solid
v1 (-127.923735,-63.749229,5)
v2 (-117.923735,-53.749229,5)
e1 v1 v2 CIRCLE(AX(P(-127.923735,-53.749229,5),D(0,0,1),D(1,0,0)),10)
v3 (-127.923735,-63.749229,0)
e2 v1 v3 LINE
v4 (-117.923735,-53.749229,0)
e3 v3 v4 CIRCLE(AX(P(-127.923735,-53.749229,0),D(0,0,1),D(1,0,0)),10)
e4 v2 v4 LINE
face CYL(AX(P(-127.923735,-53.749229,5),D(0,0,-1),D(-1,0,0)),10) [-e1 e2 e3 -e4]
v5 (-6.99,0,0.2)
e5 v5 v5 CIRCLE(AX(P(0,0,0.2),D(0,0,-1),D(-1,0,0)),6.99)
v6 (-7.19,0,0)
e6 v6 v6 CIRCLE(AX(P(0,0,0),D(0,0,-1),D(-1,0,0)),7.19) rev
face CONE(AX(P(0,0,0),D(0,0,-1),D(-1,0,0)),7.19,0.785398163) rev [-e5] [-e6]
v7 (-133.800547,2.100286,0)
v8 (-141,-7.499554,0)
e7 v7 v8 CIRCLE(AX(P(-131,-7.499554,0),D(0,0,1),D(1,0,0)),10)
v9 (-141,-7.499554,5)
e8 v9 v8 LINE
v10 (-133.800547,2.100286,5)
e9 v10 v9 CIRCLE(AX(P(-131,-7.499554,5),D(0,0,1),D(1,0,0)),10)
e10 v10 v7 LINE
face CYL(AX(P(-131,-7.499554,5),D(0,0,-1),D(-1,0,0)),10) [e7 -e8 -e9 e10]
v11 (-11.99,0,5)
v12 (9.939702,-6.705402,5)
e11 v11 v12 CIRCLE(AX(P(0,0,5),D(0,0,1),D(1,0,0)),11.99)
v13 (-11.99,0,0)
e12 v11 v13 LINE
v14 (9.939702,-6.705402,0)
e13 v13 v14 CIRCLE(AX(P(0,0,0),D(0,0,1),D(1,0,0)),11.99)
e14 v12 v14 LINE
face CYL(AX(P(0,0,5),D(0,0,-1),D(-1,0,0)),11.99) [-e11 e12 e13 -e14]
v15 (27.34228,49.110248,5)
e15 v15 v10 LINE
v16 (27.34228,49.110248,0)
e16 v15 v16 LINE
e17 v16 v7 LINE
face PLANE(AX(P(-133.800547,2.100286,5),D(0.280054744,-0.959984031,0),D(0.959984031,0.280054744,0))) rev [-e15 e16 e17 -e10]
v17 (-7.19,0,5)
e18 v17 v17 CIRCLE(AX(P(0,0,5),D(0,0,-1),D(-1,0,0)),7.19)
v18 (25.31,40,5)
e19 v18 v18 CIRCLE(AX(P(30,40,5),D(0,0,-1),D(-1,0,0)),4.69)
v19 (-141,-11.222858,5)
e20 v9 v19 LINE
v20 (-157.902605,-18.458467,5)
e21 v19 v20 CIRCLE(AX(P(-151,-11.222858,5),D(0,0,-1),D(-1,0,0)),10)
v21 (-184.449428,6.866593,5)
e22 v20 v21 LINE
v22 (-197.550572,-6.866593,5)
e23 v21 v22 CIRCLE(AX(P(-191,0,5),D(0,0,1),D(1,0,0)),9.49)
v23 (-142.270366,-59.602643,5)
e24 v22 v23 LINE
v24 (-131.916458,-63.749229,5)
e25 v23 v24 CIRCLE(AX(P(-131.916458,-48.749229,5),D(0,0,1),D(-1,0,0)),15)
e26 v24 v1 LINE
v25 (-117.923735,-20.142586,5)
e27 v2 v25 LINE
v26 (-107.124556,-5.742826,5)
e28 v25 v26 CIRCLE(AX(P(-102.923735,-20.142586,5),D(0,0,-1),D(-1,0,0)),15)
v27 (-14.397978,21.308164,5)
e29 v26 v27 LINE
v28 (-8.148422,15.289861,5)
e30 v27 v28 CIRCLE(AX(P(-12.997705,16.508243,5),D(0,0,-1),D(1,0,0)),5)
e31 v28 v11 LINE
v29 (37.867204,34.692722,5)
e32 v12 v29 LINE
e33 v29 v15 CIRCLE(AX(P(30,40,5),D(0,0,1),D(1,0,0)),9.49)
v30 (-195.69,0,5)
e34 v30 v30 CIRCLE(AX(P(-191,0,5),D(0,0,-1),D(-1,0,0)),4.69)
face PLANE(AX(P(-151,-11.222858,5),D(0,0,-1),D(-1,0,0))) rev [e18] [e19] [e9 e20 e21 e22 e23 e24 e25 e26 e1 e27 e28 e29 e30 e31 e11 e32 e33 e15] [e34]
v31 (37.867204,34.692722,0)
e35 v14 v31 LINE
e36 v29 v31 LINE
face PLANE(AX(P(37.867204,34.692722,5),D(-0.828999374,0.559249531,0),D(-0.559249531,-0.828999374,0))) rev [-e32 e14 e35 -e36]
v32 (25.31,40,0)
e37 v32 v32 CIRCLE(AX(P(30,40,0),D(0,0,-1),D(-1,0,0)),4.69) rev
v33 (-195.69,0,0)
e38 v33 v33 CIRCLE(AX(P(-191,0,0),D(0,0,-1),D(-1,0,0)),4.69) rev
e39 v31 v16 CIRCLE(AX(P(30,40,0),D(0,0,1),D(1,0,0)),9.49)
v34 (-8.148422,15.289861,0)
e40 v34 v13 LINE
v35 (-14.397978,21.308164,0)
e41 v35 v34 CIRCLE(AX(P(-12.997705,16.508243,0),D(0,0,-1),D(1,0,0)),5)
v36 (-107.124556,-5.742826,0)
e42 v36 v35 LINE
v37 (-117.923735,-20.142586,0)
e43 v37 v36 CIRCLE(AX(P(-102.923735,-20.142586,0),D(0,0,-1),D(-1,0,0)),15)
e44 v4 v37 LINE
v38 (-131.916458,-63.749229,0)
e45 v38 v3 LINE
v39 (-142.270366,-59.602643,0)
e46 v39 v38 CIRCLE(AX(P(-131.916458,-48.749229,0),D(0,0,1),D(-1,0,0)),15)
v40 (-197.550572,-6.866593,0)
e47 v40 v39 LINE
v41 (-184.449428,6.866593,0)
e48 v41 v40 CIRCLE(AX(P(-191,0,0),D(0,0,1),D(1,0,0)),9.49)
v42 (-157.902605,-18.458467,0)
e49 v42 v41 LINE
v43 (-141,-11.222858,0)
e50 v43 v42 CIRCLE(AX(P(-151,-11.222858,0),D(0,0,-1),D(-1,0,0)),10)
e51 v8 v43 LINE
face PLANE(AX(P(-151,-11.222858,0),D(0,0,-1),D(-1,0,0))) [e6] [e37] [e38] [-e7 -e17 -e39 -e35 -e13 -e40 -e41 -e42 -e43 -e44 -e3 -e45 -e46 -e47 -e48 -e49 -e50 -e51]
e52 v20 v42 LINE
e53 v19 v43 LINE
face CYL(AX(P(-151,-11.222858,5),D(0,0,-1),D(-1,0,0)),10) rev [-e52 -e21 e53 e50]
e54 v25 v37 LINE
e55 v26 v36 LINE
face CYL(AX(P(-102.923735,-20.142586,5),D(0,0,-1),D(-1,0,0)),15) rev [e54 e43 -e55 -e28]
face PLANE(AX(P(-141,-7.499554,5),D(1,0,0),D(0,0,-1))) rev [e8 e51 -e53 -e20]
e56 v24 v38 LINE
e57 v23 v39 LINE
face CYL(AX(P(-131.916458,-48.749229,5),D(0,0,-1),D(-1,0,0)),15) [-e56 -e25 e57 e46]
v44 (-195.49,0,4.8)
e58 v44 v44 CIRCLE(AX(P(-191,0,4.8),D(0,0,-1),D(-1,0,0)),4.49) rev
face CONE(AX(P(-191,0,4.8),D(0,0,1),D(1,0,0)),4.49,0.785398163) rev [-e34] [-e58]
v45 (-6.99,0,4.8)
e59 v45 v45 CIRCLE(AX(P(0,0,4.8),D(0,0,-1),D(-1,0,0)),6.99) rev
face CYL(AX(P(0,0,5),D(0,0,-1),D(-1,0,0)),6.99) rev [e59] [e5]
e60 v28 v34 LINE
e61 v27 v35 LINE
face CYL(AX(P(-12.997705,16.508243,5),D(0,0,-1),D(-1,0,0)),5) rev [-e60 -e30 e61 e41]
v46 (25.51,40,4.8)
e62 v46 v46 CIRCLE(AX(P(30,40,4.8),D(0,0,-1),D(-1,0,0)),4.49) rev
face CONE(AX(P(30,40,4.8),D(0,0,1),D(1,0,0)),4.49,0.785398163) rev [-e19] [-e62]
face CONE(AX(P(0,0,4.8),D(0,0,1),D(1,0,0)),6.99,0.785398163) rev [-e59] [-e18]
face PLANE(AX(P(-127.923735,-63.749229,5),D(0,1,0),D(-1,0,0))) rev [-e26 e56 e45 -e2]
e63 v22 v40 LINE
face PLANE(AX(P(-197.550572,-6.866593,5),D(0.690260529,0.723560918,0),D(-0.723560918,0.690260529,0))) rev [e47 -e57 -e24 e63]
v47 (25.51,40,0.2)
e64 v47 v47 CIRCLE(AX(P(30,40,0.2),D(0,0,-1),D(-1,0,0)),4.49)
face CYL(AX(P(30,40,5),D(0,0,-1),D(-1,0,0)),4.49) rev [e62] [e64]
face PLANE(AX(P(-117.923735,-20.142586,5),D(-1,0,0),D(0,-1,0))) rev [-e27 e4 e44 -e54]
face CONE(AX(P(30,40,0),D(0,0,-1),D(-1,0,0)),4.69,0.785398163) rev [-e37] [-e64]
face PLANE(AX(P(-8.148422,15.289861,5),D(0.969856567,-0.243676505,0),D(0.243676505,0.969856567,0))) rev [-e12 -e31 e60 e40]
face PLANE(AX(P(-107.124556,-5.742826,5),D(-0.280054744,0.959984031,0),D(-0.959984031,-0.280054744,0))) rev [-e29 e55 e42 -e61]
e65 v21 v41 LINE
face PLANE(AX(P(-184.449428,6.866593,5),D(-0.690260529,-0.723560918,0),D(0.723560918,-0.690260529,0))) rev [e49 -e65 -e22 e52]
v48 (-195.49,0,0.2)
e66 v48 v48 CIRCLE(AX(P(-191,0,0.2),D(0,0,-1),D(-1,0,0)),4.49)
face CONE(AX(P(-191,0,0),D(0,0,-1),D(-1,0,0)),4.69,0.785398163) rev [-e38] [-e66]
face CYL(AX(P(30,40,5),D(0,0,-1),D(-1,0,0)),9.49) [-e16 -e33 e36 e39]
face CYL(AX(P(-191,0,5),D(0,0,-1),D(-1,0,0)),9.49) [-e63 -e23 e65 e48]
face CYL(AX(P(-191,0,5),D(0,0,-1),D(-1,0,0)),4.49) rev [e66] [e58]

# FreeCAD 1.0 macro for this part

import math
import FreeCAD as App
import Part
import Sketcher

V = App.Vector
Q = App.Units.Quantity


def edges_at(feature, points):
    """Names of the edges that pass closest to the given points."""
    edges = feature.Shape.Edges
    near = lambda p: min(range(len(edges)), key=lambda i: edges[i].distToShape(Part.Vertex(*p))[0])
    return sorted({f"Edge{near(p) + 1}" for p in points})

doc = App.newDocument("Part")
body = doc.addObject("PartDesign::Body", "Body")

sketch1 = body.newObject("Sketcher::SketchObject", "Sketch")
sketch1.AttachmentSupport = (doc.getObject("XY_Plane"), [""])
sketch1.MapMode = "FlatFace"
sketch1.addGeometry(Part.LineSegment(V(27.34228, 49.110248, 0), V(-133.800547, 2.100286, 0)), False)
sketch1.addGeometry(Part.ArcOfCircle(Part.Circle(V(-131, -7.499554, 0), V(0, 0, 1), 10), math.radians(106.263472), math.radians(180)), False)
sketch1.addGeometry(Part.LineSegment(V(-141, -7.499554, 0), V(-141, -11.222858, 0)), False)
sketch1.addGeometry(Part.ArcOfCircle(Part.Circle(V(-151, -11.222858, 0), V(0, 0, 1), 10), math.radians(-133.650736), math.radians(0)), False)
sketch1.addGeometry(Part.LineSegment(V(-157.902605, -18.458467, 0), V(-184.449428, 6.866593, 0)), False)
sketch1.addGeometry(Part.ArcOfCircle(Part.Circle(V(-191, 0, 0), V(0, 0, 1), 9.49), math.radians(46.349264), math.radians(226.349264)), False)
sketch1.addGeometry(Part.LineSegment(V(-197.550572, -6.866593, 0), V(-142.270366, -59.602643, 0)), False)
sketch1.addGeometry(Part.ArcOfCircle(Part.Circle(V(-131.916458, -48.749229, 0), V(0, 0, 1), 15), math.radians(-133.650736), math.radians(-90)), False)
sketch1.addGeometry(Part.LineSegment(V(-131.916458, -63.749229, 0), V(-127.923735, -63.749229, 0)), False)
sketch1.addGeometry(Part.ArcOfCircle(Part.Circle(V(-127.923735, -53.749229, 0), V(0, 0, 1), 10), math.radians(-90), math.radians(0)), False)
sketch1.addGeometry(Part.LineSegment(V(-117.923735, -53.749229, 0), V(-117.923735, -20.142586, 0)), False)
sketch1.addGeometry(Part.ArcOfCircle(Part.Circle(V(-102.923735, -20.142586, 0), V(0, 0, 1), 15), math.radians(106.263472), math.radians(180)), False)
sketch1.addGeometry(Part.LineSegment(V(-107.124556, -5.742826, 0), V(-14.397978, 21.308164, 0)), False)
sketch1.addGeometry(Part.ArcOfCircle(Part.Circle(V(-12.997705, 16.508243, 0), V(0, 0, 1), 5), math.radians(-14.103633), math.radians(106.263472)), False)
sketch1.addGeometry(Part.LineSegment(V(-8.148422, 15.289861, 0), V(-11.99, 0, 0)), False)
sketch1.addGeometry(Part.ArcOfCircle(Part.Circle(V(0, 0, 0), V(0, 0, 1), 11.99), math.radians(180), math.radians(325.996086)), False)
sketch1.addGeometry(Part.LineSegment(V(9.939702, -6.705402, 0), V(37.867204, 34.692722, 0)), False)
sketch1.addGeometry(Part.ArcOfCircle(Part.Circle(V(30, 40, 0), V(0, 0, 1), 9.49), math.radians(-34.003914), math.radians(106.263472)), False)
sketch1.addGeometry(Part.Circle(V(0, 0, 0), V(0, 0, 1), 6.99), False)
sketch1.addGeometry(Part.Circle(V(-191, 0, 0), V(0, 0, 1), 4.49), False)
sketch1.addGeometry(Part.Circle(V(30, 40, 0), V(0, 0, 1), 4.49), False)
sketch1.addConstraint(Sketcher.Constraint("Tangent", 0, 2, 1, 1))
sketch1.addConstraint(Sketcher.Constraint("Tangent", 1, 2, 2, 1))
sketch1.addConstraint(Sketcher.Constraint("Tangent", 2, 2, 3, 2))
sketch1.addConstraint(Sketcher.Constraint("Tangent", 3, 1, 4, 1))
sketch1.addConstraint(Sketcher.Constraint("Tangent", 4, 2, 5, 1))
sketch1.addConstraint(Sketcher.Constraint("Tangent", 5, 2, 6, 1))
sketch1.addConstraint(Sketcher.Constraint("Tangent", 6, 2, 7, 1))
sketch1.addConstraint(Sketcher.Constraint("Tangent", 7, 2, 8, 1))
sketch1.addConstraint(Sketcher.Constraint("Tangent", 8, 2, 9, 1))
sketch1.addConstraint(Sketcher.Constraint("Tangent", 9, 2, 10, 1))
sketch1.addConstraint(Sketcher.Constraint("Tangent", 10, 2, 11, 2))
sketch1.addConstraint(Sketcher.Constraint("Tangent", 11, 1, 12, 1))
sketch1.addConstraint(Sketcher.Constraint("Tangent", 12, 2, 13, 2))
sketch1.addConstraint(Sketcher.Constraint("Tangent", 13, 1, 14, 1))
sketch1.addConstraint(Sketcher.Constraint("Coincident", 14, 2, 15, 1))
sketch1.addConstraint(Sketcher.Constraint("Tangent", 15, 2, 16, 1))
sketch1.addConstraint(Sketcher.Constraint("Tangent", 16, 2, 17, 1))
sketch1.addConstraint(Sketcher.Constraint("Tangent", 17, 2, 0, 1))
sketch1.addConstraint(Sketcher.Constraint("Vertical", 2))
sketch1.addConstraint(Sketcher.Constraint("Horizontal", 8))
sketch1.addConstraint(Sketcher.Constraint("Vertical", 10))
sketch1.addConstraint(Sketcher.Constraint("Coincident", 15, 3, -1, 1))
sketch1.addConstraint(Sketcher.Constraint("Coincident", 18, 3, -1, 1))
sketch1.addConstraint(Sketcher.Constraint("Coincident", 19, 3, 5, 3))
sketch1.addConstraint(Sketcher.Constraint("Coincident", 20, 3, 17, 3))
sketch1.addConstraint(Sketcher.Constraint("Equal", 1, 3))
sketch1.addConstraint(Sketcher.Constraint("Equal", 3, 9))
sketch1.addConstraint(Sketcher.Constraint("Equal", 7, 11))
sketch1.addConstraint(Sketcher.Constraint("Equal", 5, 17))
sketch1.addConstraint(Sketcher.Constraint("Equal", 19, 20))
sketch1.addConstraint(Sketcher.Constraint("PointOnObject", 5, 3, -1))
sketch1.addConstraint(Sketcher.Constraint("PointOnObject", 14, 2, -1))
sketch1.addConstraint(Sketcher.Constraint("Parallel", 4, 6))
sketch1.addConstraint(Sketcher.Constraint("Parallel", 0, 12))
sketch1.addConstraint(Sketcher.Constraint("Radius", 1, Q("10 mm")))
sketch1.addConstraint(Sketcher.Constraint("Radius", 7, Q("15 mm")))
sketch1.addConstraint(Sketcher.Constraint("Radius", 13, Q("5 mm")))
sketch1.addConstraint(Sketcher.Constraint("Diameter", 18, Q("13.98 mm")))
sketch1.addConstraint(Sketcher.Constraint("Diameter", 19, Q("8.98 mm")))
sketch1.addConstraint(Sketcher.Constraint("Radius", 5, Q("9.49 mm")))
sketch1.addConstraint(Sketcher.Constraint("Radius", 15, Q("11.99 mm")))
sketch1.addConstraint(Sketcher.Constraint("DistanceX", 1, 3, -1, 1, Q("131 mm")))
sketch1.addConstraint(Sketcher.Constraint("DistanceX", 5, 3, -1, 1, Q("191 mm")))
sketch1.addConstraint(Sketcher.Constraint("DistanceX", -1, 1, 17, 3, Q("30 mm")))
sketch1.addConstraint(Sketcher.Constraint("DistanceY", -1, 1, 17, 3, Q("40 mm")))
sketch1.addConstraint(Sketcher.Constraint("DistanceY", 3, 3, 13, 3, Q("27.731101 mm")))
sketch1.addConstraint(Sketcher.Constraint("Distance", 6, Q("76.400211 mm")))
sketch1.addConstraint(Sketcher.Constraint("Distance", 12, Q("96.591792 mm")))
sketch1.addConstraint(Sketcher.Constraint("DistanceX", 8, 1, 8, 2, Q("3.992723 mm")))
sketch1.addConstraint(Sketcher.Constraint("DistanceY", 2, 2, 2, 1, Q("3.723303 mm")))
sketch1.addConstraint(Sketcher.Constraint("DistanceY", 10, 1, 10, 2, Q("33.606643 mm")))
pad1 = body.newObject("PartDesign::Pad", "Pad")
pad1.Profile = sketch1
pad1.Length = 5
doc.recompute()

chamfer = body.newObject("PartDesign::Chamfer", "Chamfer")
chamfer.Base = (pad1, edges_at(pad1, [(-195.49, 0, 0), (-195.49, 0, 5)]))
chamfer.Size = 0.2
doc.recompute()

chamfer2 = body.newObject("PartDesign::Chamfer", "Chamfer001")
chamfer2.Base = (chamfer, edges_at(chamfer, [(-6.99, 0, 0), (-6.99, 0, 5)]))
chamfer2.Size = 0.2
doc.recompute()

chamfer3 = body.newObject("PartDesign::Chamfer", "Chamfer002")
chamfer3.Base = (chamfer2, edges_at(chamfer2, [(25.51, 40, 0), (25.51, 40, 5)]))
chamfer3.Size = 0.2

doc.recompute()
